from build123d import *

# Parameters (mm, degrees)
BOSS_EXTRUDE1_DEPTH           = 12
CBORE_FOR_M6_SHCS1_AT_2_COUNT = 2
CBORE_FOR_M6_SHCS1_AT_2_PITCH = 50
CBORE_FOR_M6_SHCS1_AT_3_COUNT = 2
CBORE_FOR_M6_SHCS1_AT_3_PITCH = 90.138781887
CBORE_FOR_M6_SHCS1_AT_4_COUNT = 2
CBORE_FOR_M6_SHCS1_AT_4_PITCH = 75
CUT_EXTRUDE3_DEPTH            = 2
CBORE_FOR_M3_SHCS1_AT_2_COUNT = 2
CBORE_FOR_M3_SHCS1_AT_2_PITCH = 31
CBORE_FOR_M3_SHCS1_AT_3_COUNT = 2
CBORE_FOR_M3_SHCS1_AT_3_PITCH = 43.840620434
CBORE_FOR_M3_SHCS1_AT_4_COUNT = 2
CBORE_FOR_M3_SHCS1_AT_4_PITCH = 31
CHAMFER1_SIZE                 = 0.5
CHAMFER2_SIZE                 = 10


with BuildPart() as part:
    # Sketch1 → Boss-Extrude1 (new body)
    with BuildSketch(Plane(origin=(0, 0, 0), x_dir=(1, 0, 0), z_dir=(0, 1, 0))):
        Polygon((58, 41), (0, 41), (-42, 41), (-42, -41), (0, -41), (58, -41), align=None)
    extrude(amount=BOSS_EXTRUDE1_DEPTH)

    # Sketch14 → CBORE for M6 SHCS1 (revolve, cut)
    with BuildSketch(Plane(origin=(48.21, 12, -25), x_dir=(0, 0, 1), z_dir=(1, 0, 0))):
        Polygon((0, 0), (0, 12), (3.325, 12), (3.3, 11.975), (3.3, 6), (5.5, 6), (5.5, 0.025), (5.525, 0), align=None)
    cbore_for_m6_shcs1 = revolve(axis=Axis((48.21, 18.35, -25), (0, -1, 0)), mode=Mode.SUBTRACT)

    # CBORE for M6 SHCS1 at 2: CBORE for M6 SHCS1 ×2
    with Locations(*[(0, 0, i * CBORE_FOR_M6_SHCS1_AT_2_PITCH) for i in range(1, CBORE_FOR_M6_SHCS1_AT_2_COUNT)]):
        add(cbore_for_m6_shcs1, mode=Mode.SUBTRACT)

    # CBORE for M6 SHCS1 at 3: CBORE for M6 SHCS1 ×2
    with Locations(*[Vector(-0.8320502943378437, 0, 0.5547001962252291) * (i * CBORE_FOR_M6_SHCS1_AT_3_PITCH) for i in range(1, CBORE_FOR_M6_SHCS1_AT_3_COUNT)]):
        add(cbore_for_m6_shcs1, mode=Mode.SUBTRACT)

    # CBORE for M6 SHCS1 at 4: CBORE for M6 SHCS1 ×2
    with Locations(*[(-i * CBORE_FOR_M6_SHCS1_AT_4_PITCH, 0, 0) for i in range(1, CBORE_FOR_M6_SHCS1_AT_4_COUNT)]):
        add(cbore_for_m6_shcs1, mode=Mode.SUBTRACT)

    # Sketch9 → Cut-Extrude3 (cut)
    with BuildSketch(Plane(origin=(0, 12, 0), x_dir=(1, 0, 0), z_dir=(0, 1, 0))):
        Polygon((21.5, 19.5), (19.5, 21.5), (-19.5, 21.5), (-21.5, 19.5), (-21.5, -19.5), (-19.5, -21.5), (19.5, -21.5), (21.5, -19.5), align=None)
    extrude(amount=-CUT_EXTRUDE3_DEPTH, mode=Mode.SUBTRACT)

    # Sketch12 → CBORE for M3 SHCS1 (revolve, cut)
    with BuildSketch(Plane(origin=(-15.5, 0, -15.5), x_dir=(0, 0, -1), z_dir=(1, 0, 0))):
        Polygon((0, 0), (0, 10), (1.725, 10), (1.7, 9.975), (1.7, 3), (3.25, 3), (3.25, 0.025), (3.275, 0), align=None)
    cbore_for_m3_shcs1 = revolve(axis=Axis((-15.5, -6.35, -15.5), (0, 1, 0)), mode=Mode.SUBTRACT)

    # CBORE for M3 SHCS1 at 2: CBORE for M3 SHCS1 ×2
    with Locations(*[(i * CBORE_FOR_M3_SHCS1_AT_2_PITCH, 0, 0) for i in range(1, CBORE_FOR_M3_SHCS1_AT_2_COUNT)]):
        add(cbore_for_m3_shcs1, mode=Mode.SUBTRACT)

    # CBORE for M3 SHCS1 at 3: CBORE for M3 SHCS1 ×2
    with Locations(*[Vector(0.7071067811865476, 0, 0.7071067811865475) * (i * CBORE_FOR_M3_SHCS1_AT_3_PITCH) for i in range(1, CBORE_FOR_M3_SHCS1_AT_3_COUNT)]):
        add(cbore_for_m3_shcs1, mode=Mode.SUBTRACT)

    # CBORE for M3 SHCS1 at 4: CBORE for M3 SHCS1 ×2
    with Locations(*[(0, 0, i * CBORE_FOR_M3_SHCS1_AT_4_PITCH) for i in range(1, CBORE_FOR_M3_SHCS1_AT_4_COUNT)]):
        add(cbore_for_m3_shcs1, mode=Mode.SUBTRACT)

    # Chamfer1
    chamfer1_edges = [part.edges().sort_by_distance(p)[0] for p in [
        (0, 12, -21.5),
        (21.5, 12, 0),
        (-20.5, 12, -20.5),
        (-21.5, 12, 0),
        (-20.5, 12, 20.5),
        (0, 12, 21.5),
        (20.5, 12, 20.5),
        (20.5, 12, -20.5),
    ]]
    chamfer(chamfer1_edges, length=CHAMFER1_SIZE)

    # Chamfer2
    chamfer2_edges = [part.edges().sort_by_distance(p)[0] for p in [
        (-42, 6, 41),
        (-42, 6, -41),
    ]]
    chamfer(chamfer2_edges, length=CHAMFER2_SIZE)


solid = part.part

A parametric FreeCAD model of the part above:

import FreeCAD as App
import Part
import Sketcher

V = App.Vector
Q = App.Units.Quantity


def edges_at(feature, points):
    """Names of the edges that pass closest to the given points."""
    edges = feature.Shape.Edges
    near = lambda p: min(range(len(edges)), key=lambda i: edges[i].distToShape(Part.Vertex(*p))[0])
    return sorted({f"Edge{near(p) + 1}" for p in points})

doc = App.newDocument("Part")
params = doc.addObject("Spreadsheet::Sheet", "Params")
for row, (alias, value) in enumerate([
    ("sketch1_width", "100 mm"),
    ("sketch1_height", "82 mm"),
    ("pad1_length", "12 mm"),
    ("sketch2_width", "12 mm"),
    ("sketch2_height", "2.2 mm"),
    ("groove_angle", "360 deg"),
    ("linearpattern_pitch", "50 mm"),
    ("linearpattern2_pitch", "90.138782 mm"),
    ("linearpattern3_pitch", "75 mm"),
    ("sketch3_width", "39 mm"),
    ("pocket1_length", "2 mm"),
    ("sketch4_width", "10 mm"),
    ("sketch4_height", "1.55 mm"),
    ("groove2_angle", "360 deg"),
    ("linearpattern4_pitch", "31 mm"),
    ("linearpattern5_pitch", "43.84062 mm"),
    ("linearpattern6_pitch", "31 mm"),
    ("chamfer_size", "0.5 mm"),
    ("chamfer2_size", "10 mm"),
], start=1):
    params.set(f"A{row}", alias)
    params.set(f"B{row}", "=" + value)
    params.setAlias(f"B{row}", alias)

body = doc.addObject("PartDesign::Body", "Body")

# Sketch on XZ plane
sketch1 = body.newObject("Sketcher::SketchObject", "Sketch")
sketch1.AttachmentSupport = (doc.getObject("XZ_Plane"), [""])
sketch1.MapMode = "FlatFace"
sketch1.addGeometry([
    Part.LineSegment(V(58, -41, 0), V(-42, -41, 0)),
    Part.LineSegment(V(-42, -41, 0), V(-42, 41, 0)),
    Part.LineSegment(V(-42, 41, 0), V(58, 41, 0)),
    Part.LineSegment(V(58, 41, 0), V(58, -41, 0)),
], False)
sketch1.addConstraint([
    Sketcher.Constraint("Coincident", 0, 2, 1, 1),
    Sketcher.Constraint("Coincident", 1, 2, 2, 1),
    Sketcher.Constraint("Coincident", 2, 2, 3, 1),
    Sketcher.Constraint("Coincident", 3, 2, 0, 1),
    Sketcher.Constraint("Horizontal", 0),
    Sketcher.Constraint("Vertical", 1),
    Sketcher.Constraint("Horizontal", 2),
    Sketcher.Constraint("Vertical", 3),
    Sketcher.Constraint("DistanceX", 0, 2, 0, 1, Q("100 mm")),
    Sketcher.Constraint("DistanceY", 1, 1, 1, 2, Q("82 mm")),
    Sketcher.Constraint("DistanceX", 0, 2, -1, 1, Q("42 mm")),
    Sketcher.Constraint("DistanceY", 0, 2, -1, 1, Q("41 mm")),
])
sketch1.setExpression("Constraints[8]", "Params.sketch1_width")
sketch1.setExpression("Constraints[9]", "Params.sketch1_height")
pad1 = body.newObject("PartDesign::Pad", "Pad")
pad1.Profile = sketch1
pad1.setExpression("Length", "Params.pad1_length")
pad1.Reversed = True

# Sketch on YZ plane
sketch2 = body.newObject("Sketcher::SketchObject", "Sketch001")
sketch2.AttachmentSupport = (doc.getObject("YZ_Plane"), [""])
sketch2.MapMode = "FlatFace"
sketch2.AttachmentOffset = App.Placement(V(0, 0, 48.21), App.Rotation())
sketch2.addGeometry([
    Part.LineSegment(V(0, -25, 0), V(12, -25, 0)),  # 0
    Part.LineSegment(V(12, -25, 0), V(12, -19.475, 0)),  # 1
    Part.LineSegment(V(12, -19.475, 0), V(11.975, -19.5, 0)),  # 2
    Part.LineSegment(V(11.975, -19.5, 0), V(6, -19.5, 0)),  # 3
    Part.LineSegment(V(6, -19.5, 0), V(6, -21.7, 0)),  # 4
    Part.LineSegment(V(6, -21.7, 0), V(0.025, -21.7, 0)),  # 5
    Part.LineSegment(V(0.025, -21.7, 0), V(0, -21.675, 0)),  # 6
    Part.LineSegment(V(0, -21.675, 0), V(0, -25, 0)),  # 7
], False)
sketch2.addGeometry(Part.LineSegment(V(12, -25, 0), V(0, -25, 0)), True)  # axis
sketch2.addConstraint([
    Sketcher.Constraint("Coincident", 0, 2, 1, 1),
    Sketcher.Constraint("Coincident", 1, 2, 2, 1),
    Sketcher.Constraint("Coincident", 2, 2, 3, 1),
    Sketcher.Constraint("Coincident", 3, 2, 4, 1),
    Sketcher.Constraint("Coincident", 4, 2, 5, 1),
    Sketcher.Constraint("Coincident", 5, 2, 6, 1),
    Sketcher.Constraint("Coincident", 6, 2, 7, 1),
    Sketcher.Constraint("Coincident", 7, 2, 0, 1),
    Sketcher.Constraint("Horizontal", 0),
    Sketcher.Constraint("Vertical", 1),
    Sketcher.Constraint("Horizontal", 3),
    Sketcher.Constraint("Vertical", 4),
    Sketcher.Constraint("Horizontal", 5),
    Sketcher.Constraint("Vertical", 7),
    Sketcher.Constraint("Horizontal", 8),
    Sketcher.Constraint("Coincident", 8, 1, 0, 2),
    Sketcher.Constraint("PointOnObject", 6, 2, -2),
    Sketcher.Constraint("PointOnObject", 8, 2, -2),
    Sketcher.Constraint("Perpendicular", 2, 6),
    Sketcher.Constraint("Equal", 3, 5),
    Sketcher.Constraint("Equal", 2, 6),
    Sketcher.Constraint("DistanceX", 0, 1, 0, 2, Q("12 mm")),
    Sketcher.Constraint("Angle", 2, Q("-135 deg")),
    Sketcher.Constraint("DistanceY", 4, 2, 4, 1, Q("2.2 mm")),
    Sketcher.Constraint("DistanceY", 0, 2, -1, 1, Q("25 mm")),
    Sketcher.Constraint("DistanceY", 2, 2, -1, 1, Q("19.5 mm")),
    Sketcher.Constraint("DistanceX", 3, 2, 3, 1, Q("5.975 mm")),
])
sketch2.setExpression("Constraints[21]", "Params.sketch2_width")
sketch2.setExpression("Constraints[23]", "Params.sketch2_height")
groove = body.newObject("PartDesign::Groove", "Groove")
groove.Profile = sketch2
groove.ReferenceAxis = (sketch2, ["Axis0"])
groove.setExpression("Angle", "Params.groove_angle")
doc.recompute()

linearpattern = body.newObject("PartDesign::LinearPattern", "LinearPattern")
linearpattern.Originals = [groove]
linearpattern.Direction = (doc.getObject("Z_Axis"), [""])
linearpattern.Mode = "offset"
linearpattern.setExpression("Offset", "Params.linearpattern_pitch")
linearpattern.Occurrences = 2
body.Tip = linearpattern
doc.recompute()

datumline = body.newObject("PartDesign::Line", "DatumLine")
datumline.Placement = App.Placement(V(0, 0, 0), App.Rotation(V(0, 0, 1), V(-0.832050294, 0, 0.554700196)))
linearpattern2 = body.newObject("PartDesign::LinearPattern", "LinearPattern001")
linearpattern2.Originals = [groove]
linearpattern2.Direction = (datumline, [""])
linearpattern2.Mode = "offset"
linearpattern2.setExpression("Offset", "Params.linearpattern2_pitch")
linearpattern2.Occurrences = 2
body.Tip = linearpattern2
doc.recompute()

linearpattern3 = body.newObject("PartDesign::LinearPattern", "LinearPattern002")
linearpattern3.Originals = [groove]
linearpattern3.Direction = (doc.getObject("X_Axis"), [""])
linearpattern3.Mode = "offset"
linearpattern3.setExpression("Offset", "Params.linearpattern3_pitch")
linearpattern3.Occurrences = 2
linearpattern3.Reversed = True
body.Tip = linearpattern3

# Sketch on XZ plane
sketch3 = body.newObject("Sketcher::SketchObject", "Sketch002")
sketch3.AttachmentSupport = (doc.getObject("XZ_Plane"), [""])
sketch3.MapMode = "FlatFace"
sketch3.AttachmentOffset = App.Placement(V(0, 0, -12), App.Rotation())
sketch3.addGeometry([
    Part.LineSegment(V(21.5, -19.5, 0), V(19.5, -21.5, 0)),  # 0
    Part.LineSegment(V(19.5, -21.5, 0), V(-19.5, -21.5, 0)),  # 1
    Part.LineSegment(V(-19.5, -21.5, 0), V(-21.5, -19.5, 0)),  # 2
    Part.LineSegment(V(-21.5, -19.5, 0), V(-21.5, 19.5, 0)),  # 3
    Part.LineSegment(V(-21.5, 19.5, 0), V(-19.5, 21.5, 0)),  # 4
    Part.LineSegment(V(-19.5, 21.5, 0), V(19.5, 21.5, 0)),  # 5
    Part.LineSegment(V(19.5, 21.5, 0), V(21.5, 19.5, 0)),  # 6
    Part.LineSegment(V(21.5, 19.5, 0), V(21.5, -19.5, 0)),  # 7
], False)
sketch3.addConstraint([
    Sketcher.Constraint("Coincident", 0, 2, 1, 1),
    Sketcher.Constraint("Coincident", 1, 2, 2, 1),
    Sketcher.Constraint("Coincident", 2, 2, 3, 1),
    Sketcher.Constraint("Coincident", 3, 2, 4, 1),
    Sketcher.Constraint("Coincident", 4, 2, 5, 1),
    Sketcher.Constraint("Coincident", 5, 2, 6, 1),
    Sketcher.Constraint("Coincident", 6, 2, 7, 1),
    Sketcher.Constraint("Coincident", 7, 2, 0, 1),
    Sketcher.Constraint("Horizontal", 1),
    Sketcher.Constraint("Vertical", 3),
    Sketcher.Constraint("Horizontal", 5),
    Sketcher.Constraint("Vertical", 7),
    Sketcher.Constraint("Symmetric", 0, 2, 4, 2, -1, 1),
    Sketcher.Constraint("Symmetric", 2, 2, 6, 2, -1, 1),
    Sketcher.Constraint("Perpendicular", 0, 2),
    Sketcher.Constraint("Perpendicular", 2, 4),
    Sketcher.Constraint("Perpendicular", 4, 6),
    Sketcher.Constraint("Horizontal", 3, 2, 6, 2),
    Sketcher.Constraint("Vertical", 1, 2, 4, 2),
    Sketcher.Constraint("Equal", 5, 3),
    Sketcher.Constraint("DistanceX", 1, 2, 1, 1, Q("39 mm")),
    Sketcher.Constraint("DistanceX", 2, 2, 1, 2, Q("2 mm")),
])
sketch3.setExpression("Constraints[20]", "Params.sketch3_width")
pocket1 = body.newObject("PartDesign::Pocket", "Pocket")
pocket1.Profile = sketch3
pocket1.setExpression("Length", "Params.pocket1_length")
pocket1.Reversed = True

# Sketch on YZ plane
sketch4 = body.newObject("Sketcher::SketchObject", "Sketch003")
sketch4.AttachmentSupport = (doc.getObject("YZ_Plane"), [""])
sketch4.MapMode = "FlatFace"
sketch4.AttachmentOffset = App.Placement(V(0, 0, -15.5), App.Rotation())
sketch4.addGeometry([
    Part.LineSegment(V(10, -15.5, 0), V(0, -15.5, 0)),  # 0
    Part.LineSegment(V(0, -15.5, 0), V(0, -18.775, 0)),  # 1
    Part.LineSegment(V(0, -18.775, 0), V(0.025, -18.75, 0)),  # 2
    Part.LineSegment(V(0.025, -18.75, 0), V(3, -18.75, 0)),  # 3
    Part.LineSegment(V(3, -18.75, 0), V(3, -17.2, 0)),  # 4
    Part.LineSegment(V(3, -17.2, 0), V(9.975, -17.2, 0)),  # 5
    Part.LineSegment(V(9.975, -17.2, 0), V(10, -17.225, 0)),  # 6
    Part.LineSegment(V(10, -17.225, 0), V(10, -15.5, 0)),  # 7
], False)
sketch4.addGeometry(Part.LineSegment(V(0, -15.5, 0), V(10, -15.5, 0)), True)  # axis
sketch4.addConstraint([
    Sketcher.Constraint("Coincident", 0, 2, 1, 1),
    Sketcher.Constraint("Coincident", 1, 2, 2, 1),
    Sketcher.Constraint("Coincident", 2, 2, 3, 1),
    Sketcher.Constraint("Coincident", 3, 2, 4, 1),
    Sketcher.Constraint("Coincident", 4, 2, 5, 1),
    Sketcher.Constraint("Coincident", 5, 2, 6, 1),
    Sketcher.Constraint("Coincident", 6, 2, 7, 1),
    Sketcher.Constraint("Coincident", 7, 2, 0, 1),
    Sketcher.Constraint("Horizontal", 0),
    Sketcher.Constraint("Vertical", 1),
    Sketcher.Constraint("Horizontal", 3),
    Sketcher.Constraint("Vertical", 4),
    Sketcher.Constraint("Horizontal", 5),
    Sketcher.Constraint("Vertical", 7),
    Sketcher.Constraint("Horizontal", 8),
    Sketcher.Constraint("Coincident", 8, 1, 0, 2),
    Sketcher.Constraint("PointOnObject", 0, 2, -2),
    Sketcher.Constraint("Perpendicular", 2, 6),
    Sketcher.Constraint("Vertical", 6, 2, 8, 2),
    Sketcher.Constraint("Equal", 2, 6),
    Sketcher.Constraint("DistanceX", 0, 2, 0, 1, Q("10 mm")),
    Sketcher.Constraint("Angle", 2, Q("45 deg")),
    Sketcher.Constraint("DistanceX", -1, 1, 3, 2, Q("3 mm")),
    Sketcher.Constraint("DistanceY", 4, 1, 4, 2, Q("1.55 mm")),
    Sketcher.Constraint("DistanceY", 0, 2, -1, 1, Q("15.5 mm")),
    Sketcher.Constraint("DistanceY", 4, 2, -1, 1, Q("17.2 mm")),
    Sketcher.Constraint("DistanceX", 3, 1, 3, 2, Q("2.975 mm")),
])
sketch4.setExpression("Constraints[20]", "Params.sketch4_width")
sketch4.setExpression("Constraints[23]", "Params.sketch4_height")
groove2 = body.newObject("PartDesign::Groove", "Groove001")
groove2.Profile = sketch4
groove2.ReferenceAxis = (sketch4, ["Axis0"])
groove2.setExpression("Angle", "Params.groove2_angle")
doc.recompute()

linearpattern4 = body.newObject("PartDesign::LinearPattern", "LinearPattern003")
linearpattern4.Originals = [groove2]
linearpattern4.Direction = (doc.getObject("X_Axis"), [""])
linearpattern4.Mode = "offset"
linearpattern4.setExpression("Offset", "Params.linearpattern4_pitch")
linearpattern4.Occurrences = 2
body.Tip = linearpattern4
doc.recompute()

datumline2 = body.newObject("PartDesign::Line", "DatumLine001")
datumline2.Placement = App.Placement(V(0, 0, 0), App.Rotation(V(0, 0, 1), V(0.707106781, 0, 0.707106781)))
linearpattern5 = body.newObject("PartDesign::LinearPattern", "LinearPattern004")
linearpattern5.Originals = [groove2]
linearpattern5.Direction = (datumline2, [""])
linearpattern5.Mode = "offset"
linearpattern5.setExpression("Offset", "Params.linearpattern5_pitch")
linearpattern5.Occurrences = 2
body.Tip = linearpattern5
doc.recompute()

linearpattern6 = body.newObject("PartDesign::LinearPattern", "LinearPattern005")
linearpattern6.Originals = [groove2]
linearpattern6.Direction = (doc.getObject("Z_Axis"), [""])
linearpattern6.Mode = "offset"
linearpattern6.setExpression("Offset", "Params.linearpattern6_pitch")
linearpattern6.Occurrences = 2
body.Tip = linearpattern6
doc.recompute()

chamfer = body.newObject("PartDesign::Chamfer", "Chamfer")
chamfer.Base = (linearpattern6, edges_at(linearpattern6, [
    (0, 12, -21.5),
    (21.5, 12, 0),
    (-20.5, 12, -20.5),
    (-21.5, 12, 0),
    (-20.5, 12, 20.5),
    (0, 12, 21.5),
    (20.5, 12, 20.5),
    (20.5, 12, -20.5),
]))
chamfer.setExpression("Size", "Params.chamfer_size")
doc.recompute()

chamfer2 = body.newObject("PartDesign::Chamfer", "Chamfer001")
chamfer2.Base = (chamfer, edges_at(chamfer, [(-42, 6, 41), (-42, 6, -41)]))
chamfer2.setExpression("Size", "Params.chamfer2_size")

doc.recompute()
